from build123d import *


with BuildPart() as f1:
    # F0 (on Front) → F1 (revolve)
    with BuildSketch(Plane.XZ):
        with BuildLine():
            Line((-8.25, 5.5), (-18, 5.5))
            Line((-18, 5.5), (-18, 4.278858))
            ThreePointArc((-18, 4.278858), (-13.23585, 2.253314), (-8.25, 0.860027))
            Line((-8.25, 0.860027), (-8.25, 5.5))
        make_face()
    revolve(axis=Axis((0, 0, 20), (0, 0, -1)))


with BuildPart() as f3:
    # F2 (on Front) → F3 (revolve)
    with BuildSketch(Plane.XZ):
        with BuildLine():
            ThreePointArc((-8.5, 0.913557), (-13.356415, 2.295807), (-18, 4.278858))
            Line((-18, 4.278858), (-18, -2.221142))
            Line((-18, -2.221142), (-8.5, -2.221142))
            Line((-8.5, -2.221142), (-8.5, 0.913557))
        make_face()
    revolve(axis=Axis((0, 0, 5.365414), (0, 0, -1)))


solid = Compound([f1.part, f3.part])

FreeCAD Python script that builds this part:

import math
import FreeCAD as App
import Part
import Sketcher

V = App.Vector
Q = App.Units.Quantity

doc = App.newDocument("Part")
body = doc.addObject("PartDesign::Body", "Body")

sketch1 = body.newObject("Sketcher::SketchObject", "Sketch")
sketch1.AttachmentSupport = (doc.getObject("XZ_Plane"), [""])
sketch1.MapMode = "FlatFace"
sketch1.addGeometry([
    Part.LineSegment(V(-8.2, 5.5, 0), V(-18, 5.5, 0)),
    Part.LineSegment(V(-18, 5.5, 0), V(-18, 4.3, 0)),
    Part.ArcOfCircle(Part.Circle(V(0, 40, 0), V(0, 0, 1), 40), math.radians(-116.74), math.radians(-101.9)),
    Part.LineSegment(V(-8.2, 0.9, 0), V(-8.2, 5.5, 0)),
], False)
sketch1.addConstraint([
    Sketcher.Constraint("Coincident", 0, 2, 1, 1),
    Sketcher.Constraint("Coincident", 1, 2, 2, 1),
    Sketcher.Constraint("Coincident", 2, 2, 3, 1),
    Sketcher.Constraint("Coincident", 3, 2, 0, 1),
    Sketcher.Constraint("Horizontal", 0),
    Sketcher.Constraint("Vertical", 1),
    Sketcher.Constraint("Vertical", 3),
    Sketcher.Constraint("DistanceX", 0, 2, -1, 1, Q("18 mm")),
    Sketcher.Constraint("DistanceX", 0, 2, 0, 1, Q("9.75 mm")),
    Sketcher.Constraint("DistanceY", -1, 1, 0, 2, Q("5.5 mm")),
    Sketcher.Constraint("Radius", 2, Q("39.999936 mm")),
    Sketcher.Constraint("DistanceY", 1, 2, 1, 1, Q("1.221142 mm")),
    Sketcher.Constraint("DistanceY", 3, 1, 3, 2, Q("4.639973 mm")),
])
revolution = body.newObject("PartDesign::Revolution", "Revolution")
revolution.Profile = sketch1
revolution.ReferenceAxis = (sketch1, ["V_Axis"])
revolution.Angle = 360
body2 = doc.addObject("PartDesign::Body", "Body001")

sketch2 = body2.newObject("Sketcher::SketchObject", "Sketch001")
sketch2.AttachmentSupport = (doc.getObject("XZ_Plane001"), [""])
sketch2.MapMode = "FlatFace"
sketch2.addGeometry([
    Part.ArcOfCircle(Part.Circle(V(0, 40, 0), V(0, 0, 1), 40), math.radians(-116.74), math.radians(-102.27)),
    Part.LineSegment(V(-18, 4.3, 0), V(-18, -2.2, 0)),
    Part.LineSegment(V(-18, -2.2, 0), V(-8.5, -2.2, 0)),
    Part.LineSegment(V(-8.5, -2.2, 0), V(-8.5, 0.9, 0)),
], False)
sketch2.addConstraint([
    Sketcher.Constraint("Coincident", 0, 1, 1, 1),
    Sketcher.Constraint("Coincident", 1, 2, 2, 1),
    Sketcher.Constraint("Coincident", 2, 2, 3, 1),
    Sketcher.Constraint("Coincident", 3, 2, 0, 2),
    Sketcher.Constraint("Vertical", 1),
    Sketcher.Constraint("Horizontal", 2),
    Sketcher.Constraint("Vertical", 3),
    Sketcher.Constraint("DistanceX", 2, 1, 2, 2, Q("9.5 mm")),
    Sketcher.Constraint("DistanceY", 1, 2, 1, 1, Q("6.5 mm")),
    Sketcher.Constraint("DistanceX", 0, 1, -1, 1, Q("18 mm")),
    Sketcher.Constraint("DistanceY", 3, 1, 3, 2, Q("3.134699 mm")),
    Sketcher.Constraint("Radius", 0, Q("40.000023 mm")),
    Sketcher.Constraint("DistanceY", -1, 1, 0, 3, Q("40.000021 mm")),
])
revolution2 = body2.newObject("PartDesign::Revolution", "Revolution001")
revolution2.Profile = sketch2
revolution2.ReferenceAxis = (sketch2, ["V_Axis"])
revolution2.Angle = 360

doc.recompute()
